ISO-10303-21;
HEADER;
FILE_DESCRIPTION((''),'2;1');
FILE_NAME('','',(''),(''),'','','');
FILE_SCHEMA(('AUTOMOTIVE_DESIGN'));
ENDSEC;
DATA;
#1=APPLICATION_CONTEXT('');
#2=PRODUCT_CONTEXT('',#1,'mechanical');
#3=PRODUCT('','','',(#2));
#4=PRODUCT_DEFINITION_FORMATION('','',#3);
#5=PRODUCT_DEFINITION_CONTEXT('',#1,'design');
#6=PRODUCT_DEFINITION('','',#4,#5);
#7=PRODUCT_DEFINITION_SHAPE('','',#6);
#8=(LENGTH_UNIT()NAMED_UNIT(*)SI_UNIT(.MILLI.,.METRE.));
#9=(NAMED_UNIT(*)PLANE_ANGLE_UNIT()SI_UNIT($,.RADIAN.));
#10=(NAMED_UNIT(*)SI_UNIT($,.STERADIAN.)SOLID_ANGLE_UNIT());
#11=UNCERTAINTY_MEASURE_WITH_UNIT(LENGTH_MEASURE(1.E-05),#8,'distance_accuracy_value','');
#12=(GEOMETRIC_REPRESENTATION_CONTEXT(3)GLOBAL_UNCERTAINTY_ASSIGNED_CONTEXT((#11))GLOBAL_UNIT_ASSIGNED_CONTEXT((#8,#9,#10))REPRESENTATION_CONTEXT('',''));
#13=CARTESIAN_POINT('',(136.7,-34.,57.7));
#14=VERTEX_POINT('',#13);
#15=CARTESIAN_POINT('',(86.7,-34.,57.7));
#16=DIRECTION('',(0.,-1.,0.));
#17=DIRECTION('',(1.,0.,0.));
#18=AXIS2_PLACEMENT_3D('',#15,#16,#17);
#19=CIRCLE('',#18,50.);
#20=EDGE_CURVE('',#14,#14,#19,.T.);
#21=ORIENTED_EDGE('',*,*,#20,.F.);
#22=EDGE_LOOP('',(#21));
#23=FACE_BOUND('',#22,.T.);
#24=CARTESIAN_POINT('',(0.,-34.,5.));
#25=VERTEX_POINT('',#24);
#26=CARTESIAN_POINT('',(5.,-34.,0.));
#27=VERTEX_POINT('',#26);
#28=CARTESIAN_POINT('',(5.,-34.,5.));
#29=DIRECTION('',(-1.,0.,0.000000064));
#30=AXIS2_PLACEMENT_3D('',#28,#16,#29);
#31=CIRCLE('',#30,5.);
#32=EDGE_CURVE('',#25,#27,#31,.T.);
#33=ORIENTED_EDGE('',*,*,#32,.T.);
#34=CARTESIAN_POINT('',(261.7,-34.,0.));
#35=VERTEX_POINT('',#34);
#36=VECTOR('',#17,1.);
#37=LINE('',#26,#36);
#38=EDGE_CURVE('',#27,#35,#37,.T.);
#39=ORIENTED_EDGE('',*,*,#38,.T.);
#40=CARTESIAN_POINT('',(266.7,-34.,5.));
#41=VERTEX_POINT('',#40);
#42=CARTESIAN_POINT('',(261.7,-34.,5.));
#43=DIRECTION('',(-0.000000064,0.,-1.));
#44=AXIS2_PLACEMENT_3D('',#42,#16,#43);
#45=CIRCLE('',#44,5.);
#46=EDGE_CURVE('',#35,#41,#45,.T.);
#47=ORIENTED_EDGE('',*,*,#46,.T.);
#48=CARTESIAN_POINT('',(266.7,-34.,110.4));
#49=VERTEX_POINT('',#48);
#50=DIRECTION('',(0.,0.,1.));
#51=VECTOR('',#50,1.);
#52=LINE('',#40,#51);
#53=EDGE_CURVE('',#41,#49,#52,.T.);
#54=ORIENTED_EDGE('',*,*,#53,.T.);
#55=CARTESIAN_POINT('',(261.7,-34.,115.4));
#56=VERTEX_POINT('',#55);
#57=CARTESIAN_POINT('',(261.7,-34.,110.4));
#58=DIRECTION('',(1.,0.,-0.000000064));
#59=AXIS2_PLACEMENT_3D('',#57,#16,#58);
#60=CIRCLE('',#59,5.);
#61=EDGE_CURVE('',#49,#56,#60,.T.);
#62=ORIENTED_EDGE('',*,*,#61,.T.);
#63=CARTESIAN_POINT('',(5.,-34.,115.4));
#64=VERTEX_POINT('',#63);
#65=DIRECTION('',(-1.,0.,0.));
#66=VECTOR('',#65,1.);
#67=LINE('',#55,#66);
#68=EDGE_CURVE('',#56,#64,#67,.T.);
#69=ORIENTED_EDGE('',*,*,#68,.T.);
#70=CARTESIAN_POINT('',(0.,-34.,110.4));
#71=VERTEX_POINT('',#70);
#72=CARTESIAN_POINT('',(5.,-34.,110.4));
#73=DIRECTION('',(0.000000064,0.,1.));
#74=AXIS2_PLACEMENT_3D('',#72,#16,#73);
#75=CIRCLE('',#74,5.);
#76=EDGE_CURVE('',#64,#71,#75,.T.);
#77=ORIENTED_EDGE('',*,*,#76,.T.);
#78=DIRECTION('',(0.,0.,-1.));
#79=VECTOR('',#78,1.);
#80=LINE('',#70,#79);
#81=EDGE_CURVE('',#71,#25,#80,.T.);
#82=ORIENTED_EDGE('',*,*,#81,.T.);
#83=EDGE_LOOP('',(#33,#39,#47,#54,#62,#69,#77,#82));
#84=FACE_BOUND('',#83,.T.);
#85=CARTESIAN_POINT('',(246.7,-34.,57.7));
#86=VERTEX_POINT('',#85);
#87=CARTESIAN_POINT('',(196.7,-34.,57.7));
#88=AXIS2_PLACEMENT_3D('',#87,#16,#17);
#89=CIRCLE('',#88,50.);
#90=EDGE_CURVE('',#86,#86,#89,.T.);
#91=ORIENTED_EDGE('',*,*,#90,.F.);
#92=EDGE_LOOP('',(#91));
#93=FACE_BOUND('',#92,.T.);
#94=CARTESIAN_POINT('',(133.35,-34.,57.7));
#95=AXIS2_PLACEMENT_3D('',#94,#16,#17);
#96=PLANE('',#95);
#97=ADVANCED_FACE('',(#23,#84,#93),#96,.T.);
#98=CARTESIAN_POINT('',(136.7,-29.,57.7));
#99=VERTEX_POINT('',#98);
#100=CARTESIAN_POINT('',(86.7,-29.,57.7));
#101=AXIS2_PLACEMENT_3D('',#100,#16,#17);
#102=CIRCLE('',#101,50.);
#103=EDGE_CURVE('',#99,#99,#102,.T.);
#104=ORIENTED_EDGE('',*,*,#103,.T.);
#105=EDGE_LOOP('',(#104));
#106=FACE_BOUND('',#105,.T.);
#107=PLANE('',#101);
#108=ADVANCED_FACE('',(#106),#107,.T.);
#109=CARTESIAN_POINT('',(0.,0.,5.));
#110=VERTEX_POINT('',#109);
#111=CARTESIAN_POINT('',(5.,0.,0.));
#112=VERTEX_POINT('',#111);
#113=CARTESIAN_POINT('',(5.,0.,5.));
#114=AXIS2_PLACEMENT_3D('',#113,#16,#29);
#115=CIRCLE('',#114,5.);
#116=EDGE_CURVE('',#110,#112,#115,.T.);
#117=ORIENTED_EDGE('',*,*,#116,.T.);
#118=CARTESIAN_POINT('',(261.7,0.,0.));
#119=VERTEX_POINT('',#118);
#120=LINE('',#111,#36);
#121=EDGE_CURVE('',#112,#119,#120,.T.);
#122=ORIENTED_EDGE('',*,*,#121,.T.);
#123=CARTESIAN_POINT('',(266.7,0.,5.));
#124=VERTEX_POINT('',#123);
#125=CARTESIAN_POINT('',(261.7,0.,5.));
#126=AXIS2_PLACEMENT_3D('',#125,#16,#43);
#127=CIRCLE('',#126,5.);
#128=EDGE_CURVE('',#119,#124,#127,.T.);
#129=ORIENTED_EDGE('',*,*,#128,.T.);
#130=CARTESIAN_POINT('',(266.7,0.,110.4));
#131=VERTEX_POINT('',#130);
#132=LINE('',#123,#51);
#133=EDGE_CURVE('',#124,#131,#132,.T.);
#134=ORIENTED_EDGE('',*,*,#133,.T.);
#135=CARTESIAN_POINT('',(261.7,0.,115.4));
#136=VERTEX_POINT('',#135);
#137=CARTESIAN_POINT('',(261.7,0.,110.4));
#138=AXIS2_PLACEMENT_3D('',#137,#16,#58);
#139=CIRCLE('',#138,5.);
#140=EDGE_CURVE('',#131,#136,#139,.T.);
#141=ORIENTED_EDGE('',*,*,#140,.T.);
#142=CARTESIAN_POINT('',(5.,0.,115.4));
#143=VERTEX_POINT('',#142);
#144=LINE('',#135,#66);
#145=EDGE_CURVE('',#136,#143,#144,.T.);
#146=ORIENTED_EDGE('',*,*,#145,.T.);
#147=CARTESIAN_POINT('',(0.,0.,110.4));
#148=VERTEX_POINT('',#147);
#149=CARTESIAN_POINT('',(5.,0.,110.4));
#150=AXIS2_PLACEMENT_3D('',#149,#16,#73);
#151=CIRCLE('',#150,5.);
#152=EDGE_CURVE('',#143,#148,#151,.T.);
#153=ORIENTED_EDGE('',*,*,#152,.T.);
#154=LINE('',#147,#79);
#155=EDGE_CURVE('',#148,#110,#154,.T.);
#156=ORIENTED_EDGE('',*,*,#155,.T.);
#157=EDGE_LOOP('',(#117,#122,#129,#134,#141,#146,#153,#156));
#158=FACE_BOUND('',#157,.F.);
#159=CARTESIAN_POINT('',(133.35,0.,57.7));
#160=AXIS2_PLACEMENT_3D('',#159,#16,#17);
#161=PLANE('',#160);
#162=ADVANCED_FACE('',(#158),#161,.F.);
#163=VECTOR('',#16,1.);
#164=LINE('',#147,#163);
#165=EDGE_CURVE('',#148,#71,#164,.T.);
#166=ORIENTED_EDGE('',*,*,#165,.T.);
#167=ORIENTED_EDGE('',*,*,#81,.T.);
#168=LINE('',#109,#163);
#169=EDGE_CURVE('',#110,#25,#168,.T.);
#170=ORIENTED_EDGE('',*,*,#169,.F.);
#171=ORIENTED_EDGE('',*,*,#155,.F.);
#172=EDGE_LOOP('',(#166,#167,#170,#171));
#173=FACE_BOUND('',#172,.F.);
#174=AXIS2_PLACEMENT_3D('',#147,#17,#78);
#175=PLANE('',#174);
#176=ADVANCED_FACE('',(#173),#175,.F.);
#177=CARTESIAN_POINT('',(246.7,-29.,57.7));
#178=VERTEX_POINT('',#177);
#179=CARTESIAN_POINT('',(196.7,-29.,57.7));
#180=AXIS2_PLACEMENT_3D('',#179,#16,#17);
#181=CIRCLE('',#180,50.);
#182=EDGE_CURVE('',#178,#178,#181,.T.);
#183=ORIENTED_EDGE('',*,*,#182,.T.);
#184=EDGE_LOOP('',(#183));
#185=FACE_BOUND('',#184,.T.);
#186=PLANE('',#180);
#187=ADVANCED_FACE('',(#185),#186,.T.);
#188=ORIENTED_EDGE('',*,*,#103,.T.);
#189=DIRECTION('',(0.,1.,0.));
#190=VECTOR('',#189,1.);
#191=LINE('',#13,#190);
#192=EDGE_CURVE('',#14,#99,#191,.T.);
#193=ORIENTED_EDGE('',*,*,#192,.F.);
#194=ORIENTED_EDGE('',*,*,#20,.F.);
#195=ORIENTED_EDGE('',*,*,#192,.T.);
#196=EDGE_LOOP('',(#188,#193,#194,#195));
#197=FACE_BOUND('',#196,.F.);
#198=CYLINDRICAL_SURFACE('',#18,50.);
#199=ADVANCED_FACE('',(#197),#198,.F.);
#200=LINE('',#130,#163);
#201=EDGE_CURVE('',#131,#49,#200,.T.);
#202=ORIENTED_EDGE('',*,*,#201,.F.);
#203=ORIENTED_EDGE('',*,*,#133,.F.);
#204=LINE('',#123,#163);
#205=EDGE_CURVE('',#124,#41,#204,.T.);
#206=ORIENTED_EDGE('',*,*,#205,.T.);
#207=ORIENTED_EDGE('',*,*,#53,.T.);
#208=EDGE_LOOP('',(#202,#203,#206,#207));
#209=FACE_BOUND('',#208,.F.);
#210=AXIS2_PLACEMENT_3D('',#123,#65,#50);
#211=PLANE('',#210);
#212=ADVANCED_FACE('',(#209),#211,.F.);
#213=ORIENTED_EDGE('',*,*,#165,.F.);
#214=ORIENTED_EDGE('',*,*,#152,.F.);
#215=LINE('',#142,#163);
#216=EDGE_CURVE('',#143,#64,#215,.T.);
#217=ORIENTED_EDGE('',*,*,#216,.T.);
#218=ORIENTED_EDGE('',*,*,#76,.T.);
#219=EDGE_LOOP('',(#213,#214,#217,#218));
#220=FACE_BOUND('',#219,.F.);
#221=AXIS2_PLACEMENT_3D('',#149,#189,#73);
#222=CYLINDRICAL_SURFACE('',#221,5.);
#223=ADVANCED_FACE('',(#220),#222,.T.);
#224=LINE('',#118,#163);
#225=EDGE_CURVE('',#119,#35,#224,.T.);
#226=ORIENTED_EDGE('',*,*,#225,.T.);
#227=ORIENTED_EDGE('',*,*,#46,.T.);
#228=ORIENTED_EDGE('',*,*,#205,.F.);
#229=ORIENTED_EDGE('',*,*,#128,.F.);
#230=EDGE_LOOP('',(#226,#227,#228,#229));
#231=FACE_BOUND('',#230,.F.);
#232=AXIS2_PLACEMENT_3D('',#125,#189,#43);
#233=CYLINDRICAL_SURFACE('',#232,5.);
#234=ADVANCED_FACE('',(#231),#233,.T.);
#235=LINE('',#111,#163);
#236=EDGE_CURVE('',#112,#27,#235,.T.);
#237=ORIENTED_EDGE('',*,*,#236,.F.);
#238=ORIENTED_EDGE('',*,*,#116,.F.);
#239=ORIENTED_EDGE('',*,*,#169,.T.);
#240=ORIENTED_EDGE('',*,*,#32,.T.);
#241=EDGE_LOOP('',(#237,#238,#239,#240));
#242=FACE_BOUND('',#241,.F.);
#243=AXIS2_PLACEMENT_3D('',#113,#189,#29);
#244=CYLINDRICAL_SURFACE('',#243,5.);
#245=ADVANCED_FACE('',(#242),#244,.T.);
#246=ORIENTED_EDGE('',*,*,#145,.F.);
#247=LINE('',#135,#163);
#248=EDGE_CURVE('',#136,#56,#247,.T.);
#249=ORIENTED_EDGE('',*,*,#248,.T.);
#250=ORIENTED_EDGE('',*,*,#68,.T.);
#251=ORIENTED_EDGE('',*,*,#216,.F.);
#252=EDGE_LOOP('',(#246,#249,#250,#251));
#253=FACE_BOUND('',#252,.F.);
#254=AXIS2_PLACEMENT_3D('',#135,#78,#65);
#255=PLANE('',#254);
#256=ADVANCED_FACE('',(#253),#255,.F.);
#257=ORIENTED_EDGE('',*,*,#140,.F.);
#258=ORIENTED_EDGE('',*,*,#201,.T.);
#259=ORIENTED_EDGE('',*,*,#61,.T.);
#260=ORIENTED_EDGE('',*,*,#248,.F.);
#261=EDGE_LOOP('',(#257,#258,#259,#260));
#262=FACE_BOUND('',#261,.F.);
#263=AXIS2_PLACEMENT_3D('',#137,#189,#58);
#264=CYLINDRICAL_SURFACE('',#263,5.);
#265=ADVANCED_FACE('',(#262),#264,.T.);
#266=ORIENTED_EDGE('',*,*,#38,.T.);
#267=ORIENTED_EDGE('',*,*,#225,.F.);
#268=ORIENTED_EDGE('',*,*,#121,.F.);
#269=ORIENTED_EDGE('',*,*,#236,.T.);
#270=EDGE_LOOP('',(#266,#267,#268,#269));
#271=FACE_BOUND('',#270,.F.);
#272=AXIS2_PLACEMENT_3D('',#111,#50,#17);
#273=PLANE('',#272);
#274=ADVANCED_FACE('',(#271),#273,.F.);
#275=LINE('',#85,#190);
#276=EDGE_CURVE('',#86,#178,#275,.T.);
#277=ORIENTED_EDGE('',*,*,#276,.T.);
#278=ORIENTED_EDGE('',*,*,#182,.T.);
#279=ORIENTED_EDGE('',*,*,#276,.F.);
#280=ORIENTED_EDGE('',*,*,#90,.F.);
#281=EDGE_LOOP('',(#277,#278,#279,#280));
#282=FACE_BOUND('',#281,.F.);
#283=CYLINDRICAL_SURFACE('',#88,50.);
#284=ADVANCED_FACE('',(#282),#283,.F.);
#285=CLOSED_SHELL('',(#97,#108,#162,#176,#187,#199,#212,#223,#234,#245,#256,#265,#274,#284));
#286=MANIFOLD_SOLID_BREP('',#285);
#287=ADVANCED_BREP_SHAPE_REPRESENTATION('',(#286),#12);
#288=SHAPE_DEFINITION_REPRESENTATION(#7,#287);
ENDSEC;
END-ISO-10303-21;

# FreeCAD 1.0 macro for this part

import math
import FreeCAD as App
import Part
import Sketcher
from FreeCAD import Vector
Q = App.Units.Quantity

doc = App.newDocument("Part")
body = doc.addObject("PartDesign::Body", "Body")

# Sketch on XZ plane
sketch1 = body.newObject("Sketcher::SketchObject", "Sketch")
sketch1.AttachmentSupport = (doc.getObject("XZ_Plane"), [""])
sketch1.MapMode = "FlatFace"
sketch1.addGeometry(Part.ArcOfCircle(Part.Circle(Vector(5, 5, 0), Vector(0, 0, 1), 5), math.radians(179.999996), math.radians(270.000004)), False)
sketch1.addGeometry(Part.LineSegment(Vector(5, 0, 0), Vector(261.7, 0, 0)), False)
sketch1.addGeometry(Part.ArcOfCircle(Part.Circle(Vector(261.7, 5, 0), Vector(0, 0, 1), 5), math.radians(-90.000004), math.radians(0.000004)), False)
sketch1.addGeometry(Part.LineSegment(Vector(266.7, 5, 0), Vector(266.7, 110.4, 0)), False)
sketch1.addGeometry(Part.ArcOfCircle(Part.Circle(Vector(261.7, 110.4, 0), Vector(0, 0, 1), 5), math.radians(-0.000004), math.radians(90.000004)), False)
sketch1.addGeometry(Part.LineSegment(Vector(261.7, 115.4, 0), Vector(5, 115.4, 0)), False)
sketch1.addGeometry(Part.ArcOfCircle(Part.Circle(Vector(5, 110.4, 0), Vector(0, 0, 1), 5), math.radians(89.999996), math.radians(180.000004)), False)
sketch1.addGeometry(Part.LineSegment(Vector(0, 110.4, 0), Vector(0, 5, 0)), False)
sketch1.addConstraint(Sketcher.Constraint("Tangent", 0, 2, 1, 1))
sketch1.addConstraint(Sketcher.Constraint("Tangent", 1, 2, 2, 1))
sketch1.addConstraint(Sketcher.Constraint("Tangent", 2, 2, 3, 1))
sketch1.addConstraint(Sketcher.Constraint("Tangent", 3, 2, 4, 1))
sketch1.addConstraint(Sketcher.Constraint("Tangent", 4, 2, 5, 1))
sketch1.addConstraint(Sketcher.Constraint("Tangent", 5, 2, 6, 1))
sketch1.addConstraint(Sketcher.Constraint("Tangent", 6, 2, 7, 1))
sketch1.addConstraint(Sketcher.Constraint("Tangent", 7, 2, 0, 1))
sketch1.addConstraint(Sketcher.Constraint("Horizontal", 1))
sketch1.addConstraint(Sketcher.Constraint("Vertical", 3))
sketch1.addConstraint(Sketcher.Constraint("Horizontal", 5))
sketch1.addConstraint(Sketcher.Constraint("Vertical", 7))
sketch1.addConstraint(Sketcher.Constraint("Equal", 0, 2))
sketch1.addConstraint(Sketcher.Constraint("Equal", 2, 4))
sketch1.addConstraint(Sketcher.Constraint("Equal", 4, 6))
sketch1.addConstraint(Sketcher.Constraint("PointOnObject", 0, 2, -1))
sketch1.addConstraint(Sketcher.Constraint("PointOnObject", 6, 2, -2))
sketch1.addConstraint(Sketcher.Constraint("Radius", 0, Q("5 mm")))
sketch1.addConstraint(Sketcher.Constraint("DistanceX", 1, 1, 1, 2, Q("256.7 mm")))
sketch1.addConstraint(Sketcher.Constraint("DistanceY", 3, 1, 3, 2, Q("105.4 mm")))
pad1 = body.newObject("PartDesign::Pad", "Pad")
pad1.Profile = sketch1
pad1.Length = 34

# Sketch on XZ plane
sketch2 = body.newObject("Sketcher::SketchObject", "Sketch001")
sketch2.AttachmentSupport = (doc.getObject("XZ_Plane"), [""])
sketch2.MapMode = "FlatFace"
sketch2.AttachmentOffset = App.Placement(Vector(0, 0, 34), App.Rotation())
sketch2.addGeometry(Part.Circle(Vector(86.7, 57.7, 0), Vector(0, 0, 1), 50), False)
sketch2.addGeometry(Part.Circle(Vector(196.7, 57.7, 0), Vector(0, 0, 1), 50), False)
sketch2.addConstraint(Sketcher.Constraint("Equal", 0, 1))
sketch2.addConstraint(Sketcher.Constraint("Horizontal", 0, 3, 1, 3))
sketch2.addConstraint(Sketcher.Constraint("Diameter", 0, Q("100 mm")))
sketch2.addConstraint(Sketcher.Constraint("DistanceX", 0, 3, 1, 3, Q("110 mm")))
sketch2.addConstraint(Sketcher.Constraint("DistanceX", -1, 1, 0, 3, Q("86.7 mm")))
sketch2.addConstraint(Sketcher.Constraint("DistanceY", -1, 1, 0, 3, Q("57.7 mm")))
pocket1 = body.newObject("PartDesign::Pocket", "Pocket")
pocket1.Profile = sketch2
pocket1.Length = 5

doc.recompute()
